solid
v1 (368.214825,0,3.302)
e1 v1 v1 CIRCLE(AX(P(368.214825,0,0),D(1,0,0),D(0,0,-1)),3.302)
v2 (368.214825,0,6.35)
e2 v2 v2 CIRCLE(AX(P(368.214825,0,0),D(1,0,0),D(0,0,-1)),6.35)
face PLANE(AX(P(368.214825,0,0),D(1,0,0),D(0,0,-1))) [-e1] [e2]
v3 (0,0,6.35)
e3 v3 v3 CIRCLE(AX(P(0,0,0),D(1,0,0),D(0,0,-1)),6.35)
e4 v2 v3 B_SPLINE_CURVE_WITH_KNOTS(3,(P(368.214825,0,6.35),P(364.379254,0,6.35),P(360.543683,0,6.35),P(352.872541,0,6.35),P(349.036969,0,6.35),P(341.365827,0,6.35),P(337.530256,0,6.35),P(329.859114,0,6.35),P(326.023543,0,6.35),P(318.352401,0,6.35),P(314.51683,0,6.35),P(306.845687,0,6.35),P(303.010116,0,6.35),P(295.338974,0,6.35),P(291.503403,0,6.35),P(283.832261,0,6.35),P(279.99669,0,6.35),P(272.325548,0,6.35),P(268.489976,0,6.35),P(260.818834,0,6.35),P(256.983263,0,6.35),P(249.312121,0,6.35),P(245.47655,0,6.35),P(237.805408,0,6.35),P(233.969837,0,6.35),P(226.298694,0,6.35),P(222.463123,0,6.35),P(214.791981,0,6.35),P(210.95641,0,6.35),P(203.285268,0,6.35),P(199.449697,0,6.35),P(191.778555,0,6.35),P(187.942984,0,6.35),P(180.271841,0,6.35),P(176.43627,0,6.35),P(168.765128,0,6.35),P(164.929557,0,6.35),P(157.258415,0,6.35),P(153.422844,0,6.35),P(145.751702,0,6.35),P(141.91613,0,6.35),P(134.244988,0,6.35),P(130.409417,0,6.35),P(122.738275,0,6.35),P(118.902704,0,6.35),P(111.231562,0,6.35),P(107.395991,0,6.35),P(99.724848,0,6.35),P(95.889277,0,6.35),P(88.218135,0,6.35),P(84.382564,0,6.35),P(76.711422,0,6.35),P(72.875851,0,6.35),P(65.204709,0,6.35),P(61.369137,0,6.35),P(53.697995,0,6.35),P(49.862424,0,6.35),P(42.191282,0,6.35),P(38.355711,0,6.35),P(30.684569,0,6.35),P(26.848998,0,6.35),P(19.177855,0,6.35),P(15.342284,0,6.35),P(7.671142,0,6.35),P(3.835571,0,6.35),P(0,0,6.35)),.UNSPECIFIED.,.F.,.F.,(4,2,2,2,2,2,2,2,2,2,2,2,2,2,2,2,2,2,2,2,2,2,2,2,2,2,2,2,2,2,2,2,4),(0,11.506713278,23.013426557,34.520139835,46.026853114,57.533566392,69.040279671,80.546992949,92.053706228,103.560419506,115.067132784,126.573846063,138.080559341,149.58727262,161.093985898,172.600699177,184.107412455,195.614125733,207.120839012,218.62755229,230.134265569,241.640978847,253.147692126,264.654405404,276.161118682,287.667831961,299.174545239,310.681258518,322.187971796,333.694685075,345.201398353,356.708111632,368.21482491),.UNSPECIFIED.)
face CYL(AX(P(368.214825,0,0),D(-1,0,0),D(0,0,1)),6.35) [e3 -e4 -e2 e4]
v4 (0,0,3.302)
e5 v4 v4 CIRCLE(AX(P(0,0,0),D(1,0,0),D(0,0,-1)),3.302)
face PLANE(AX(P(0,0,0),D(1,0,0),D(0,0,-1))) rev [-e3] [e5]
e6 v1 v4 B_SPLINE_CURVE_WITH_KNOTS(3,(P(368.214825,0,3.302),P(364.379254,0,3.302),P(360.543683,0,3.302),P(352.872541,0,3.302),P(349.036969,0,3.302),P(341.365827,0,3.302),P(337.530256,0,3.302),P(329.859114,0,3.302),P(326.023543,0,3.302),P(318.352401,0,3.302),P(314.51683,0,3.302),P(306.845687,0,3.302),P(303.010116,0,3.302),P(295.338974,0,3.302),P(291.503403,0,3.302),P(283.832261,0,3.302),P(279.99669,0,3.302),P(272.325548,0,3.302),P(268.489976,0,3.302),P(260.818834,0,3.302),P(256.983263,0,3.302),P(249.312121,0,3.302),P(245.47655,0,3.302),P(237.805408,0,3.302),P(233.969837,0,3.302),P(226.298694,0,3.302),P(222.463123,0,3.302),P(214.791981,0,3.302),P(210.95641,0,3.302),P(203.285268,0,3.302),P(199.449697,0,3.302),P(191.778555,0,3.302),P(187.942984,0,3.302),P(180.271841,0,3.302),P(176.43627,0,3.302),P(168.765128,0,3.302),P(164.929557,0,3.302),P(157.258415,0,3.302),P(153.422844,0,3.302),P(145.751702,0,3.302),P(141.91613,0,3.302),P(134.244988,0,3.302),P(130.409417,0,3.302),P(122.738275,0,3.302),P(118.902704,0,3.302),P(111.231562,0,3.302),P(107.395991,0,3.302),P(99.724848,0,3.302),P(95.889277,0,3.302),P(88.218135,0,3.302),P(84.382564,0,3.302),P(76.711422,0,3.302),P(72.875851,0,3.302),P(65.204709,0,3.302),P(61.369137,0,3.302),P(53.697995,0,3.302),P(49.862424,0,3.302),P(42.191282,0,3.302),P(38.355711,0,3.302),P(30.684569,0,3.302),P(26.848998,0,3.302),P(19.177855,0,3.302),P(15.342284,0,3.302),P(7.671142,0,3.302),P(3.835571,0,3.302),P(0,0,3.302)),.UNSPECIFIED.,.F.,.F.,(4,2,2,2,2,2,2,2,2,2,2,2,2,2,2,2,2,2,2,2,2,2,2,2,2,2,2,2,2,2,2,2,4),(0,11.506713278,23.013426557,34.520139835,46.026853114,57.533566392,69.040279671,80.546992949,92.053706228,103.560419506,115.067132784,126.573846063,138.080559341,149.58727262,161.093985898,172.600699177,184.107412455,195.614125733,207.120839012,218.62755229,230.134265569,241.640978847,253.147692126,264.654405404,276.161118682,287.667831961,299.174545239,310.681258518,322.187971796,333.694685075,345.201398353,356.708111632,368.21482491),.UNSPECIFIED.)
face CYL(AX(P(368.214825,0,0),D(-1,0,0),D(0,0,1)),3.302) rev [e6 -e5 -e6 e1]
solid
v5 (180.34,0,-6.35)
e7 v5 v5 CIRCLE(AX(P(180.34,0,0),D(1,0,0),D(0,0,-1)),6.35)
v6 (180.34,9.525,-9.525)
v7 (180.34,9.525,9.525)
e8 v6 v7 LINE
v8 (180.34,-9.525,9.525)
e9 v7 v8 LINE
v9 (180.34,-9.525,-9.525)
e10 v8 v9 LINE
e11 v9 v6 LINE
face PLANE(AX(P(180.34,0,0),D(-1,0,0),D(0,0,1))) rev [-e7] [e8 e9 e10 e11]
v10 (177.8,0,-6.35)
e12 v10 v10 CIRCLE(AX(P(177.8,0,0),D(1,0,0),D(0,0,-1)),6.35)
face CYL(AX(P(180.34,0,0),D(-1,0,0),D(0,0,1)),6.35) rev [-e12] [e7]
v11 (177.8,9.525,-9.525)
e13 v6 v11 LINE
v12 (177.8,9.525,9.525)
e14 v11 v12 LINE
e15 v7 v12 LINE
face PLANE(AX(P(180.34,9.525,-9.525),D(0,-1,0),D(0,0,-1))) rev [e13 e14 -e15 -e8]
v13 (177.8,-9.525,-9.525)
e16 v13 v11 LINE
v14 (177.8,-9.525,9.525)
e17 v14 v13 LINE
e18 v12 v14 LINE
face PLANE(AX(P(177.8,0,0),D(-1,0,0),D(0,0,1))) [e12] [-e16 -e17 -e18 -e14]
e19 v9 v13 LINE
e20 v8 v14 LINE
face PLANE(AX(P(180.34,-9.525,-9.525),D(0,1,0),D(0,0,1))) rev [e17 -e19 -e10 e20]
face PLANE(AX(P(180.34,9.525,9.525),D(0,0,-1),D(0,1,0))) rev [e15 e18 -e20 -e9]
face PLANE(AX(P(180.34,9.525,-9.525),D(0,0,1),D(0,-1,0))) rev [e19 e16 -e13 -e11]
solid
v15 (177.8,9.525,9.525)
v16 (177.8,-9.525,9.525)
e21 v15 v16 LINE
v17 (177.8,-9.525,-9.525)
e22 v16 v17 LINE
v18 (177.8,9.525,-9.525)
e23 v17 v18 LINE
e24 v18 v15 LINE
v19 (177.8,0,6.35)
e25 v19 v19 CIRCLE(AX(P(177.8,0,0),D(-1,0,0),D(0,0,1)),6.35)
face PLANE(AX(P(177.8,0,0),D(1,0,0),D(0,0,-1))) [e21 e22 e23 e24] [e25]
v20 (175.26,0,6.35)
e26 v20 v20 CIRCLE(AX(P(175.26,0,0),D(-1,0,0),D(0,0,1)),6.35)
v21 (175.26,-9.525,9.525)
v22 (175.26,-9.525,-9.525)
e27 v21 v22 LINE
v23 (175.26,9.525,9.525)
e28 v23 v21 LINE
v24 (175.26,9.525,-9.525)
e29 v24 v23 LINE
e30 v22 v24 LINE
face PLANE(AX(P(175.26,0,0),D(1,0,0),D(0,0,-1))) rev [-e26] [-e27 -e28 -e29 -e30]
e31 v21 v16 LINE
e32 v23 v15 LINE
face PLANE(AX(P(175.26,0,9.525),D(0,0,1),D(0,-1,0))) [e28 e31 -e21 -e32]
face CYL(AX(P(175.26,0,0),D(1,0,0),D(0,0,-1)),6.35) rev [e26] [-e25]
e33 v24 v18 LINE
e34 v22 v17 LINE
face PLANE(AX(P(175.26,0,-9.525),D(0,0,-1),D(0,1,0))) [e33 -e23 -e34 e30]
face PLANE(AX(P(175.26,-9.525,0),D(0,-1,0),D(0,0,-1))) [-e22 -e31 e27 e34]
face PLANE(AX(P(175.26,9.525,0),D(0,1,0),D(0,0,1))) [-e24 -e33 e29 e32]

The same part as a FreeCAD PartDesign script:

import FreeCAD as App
import Part
import Sketcher
from FreeCAD import Vector
Q = App.Units.Quantity

doc = App.newDocument("Part")
body = doc.addObject("PartDesign::Body", "Body")

# Sketch on YZ plane
sketch1 = body.newObject("Sketcher::SketchObject", "Sketch")
sketch1.AttachmentSupport = (doc.getObject("YZ_Plane"), [""])
sketch1.MapMode = "FlatFace"
sketch1.addGeometry([
    Part.Circle(Vector(0, 0, 0), Vector(0, 0, 1), 6.3),
    Part.Circle(Vector(0, 0, 0), Vector(0, 0, 1), 3.3),
], False)
sketch1.addConstraint([
    Sketcher.Constraint("Coincident", 0, 3, -1, 1),
    Sketcher.Constraint("Coincident", 1, 3, -1, 1),
    Sketcher.Constraint("Diameter", 0, Q("0.5 in")),
    Sketcher.Constraint("Diameter", 1, Q("0.26 in")),
])
pad1 = body.newObject("PartDesign::Pad", "Pad")
pad1.Profile = sketch1
pad1.Length = 368.214825
body2 = doc.addObject("PartDesign::Body", "Body001")

# Sketch on YZ plane
sketch2 = body2.newObject("Sketcher::SketchObject", "Sketch001")
sketch2.AttachmentSupport = (doc.getObject("YZ_Plane001"), [""])
sketch2.MapMode = "FlatFace"
sketch2.AttachmentOffset = App.Placement(Vector(0, 0, 7 * 25.4), App.Rotation())
sketch2.addGeometry([
    Part.LineSegment(Vector(10, 10, 0), Vector(-10, 10, 0)),  # 0
    Part.LineSegment(Vector(-10, 10, 0), Vector(-10, -10, 0)),  # 1
    Part.LineSegment(Vector(-10, -10, 0), Vector(10, -10, 0)),  # 2
    Part.LineSegment(Vector(10, -10, 0), Vector(10, 10, 0)),  # 3
    Part.Circle(Vector(0, 0, 0), Vector(0, 0, 1), 6),  # 4
], False)
sketch2.addConstraint([
    Sketcher.Constraint("Coincident", 0, 2, 1, 1),
    Sketcher.Constraint("Coincident", 1, 2, 2, 1),
    Sketcher.Constraint("Coincident", 2, 2, 3, 1),
    Sketcher.Constraint("Coincident", 3, 2, 0, 1),
    Sketcher.Constraint("Horizontal", 0),
    Sketcher.Constraint("Vertical", 1),
    Sketcher.Constraint("Horizontal", 2),
    Sketcher.Constraint("Vertical", 3),
    Sketcher.Constraint("Coincident", 4, 3, -1, 1),
    Sketcher.Constraint("Symmetric", 0, 2, 2, 2, -1, 1),
    Sketcher.Constraint("Equal", 2, 1),
    Sketcher.Constraint("Diameter", 4, Q("0.5 in")),
    Sketcher.Constraint("DistanceX", 0, 2, 0, 1, Q("0.75 in")),
])
pad2 = body2.newObject("PartDesign::Pad", "Pad001")
pad2.Profile = sketch2
pad2.Length = Q("0.1 in")
body3 = doc.addObject("PartDesign::Body", "Body002")

# Sketch on YZ plane
sketch3 = body3.newObject("Sketcher::SketchObject", "Sketch002")
sketch3.AttachmentSupport = (doc.getObject("YZ_Plane002"), [""])
sketch3.MapMode = "FlatFace"
sketch3.AttachmentOffset = App.Placement(Vector(0, 0, 7 * 25.4), App.Rotation())
sketch3.addGeometry([
    Part.LineSegment(Vector(10, 10, 0), Vector(-10, 10, 0)),  # 0
    Part.LineSegment(Vector(-10, 10, 0), Vector(-10, -10, 0)),  # 1
    Part.LineSegment(Vector(-10, -10, 0), Vector(10, -10, 0)),  # 2
    Part.LineSegment(Vector(10, -10, 0), Vector(10, 10, 0)),  # 3
    Part.Circle(Vector(0, 0, 0), Vector(0, 0, 1), 6),  # 4
], False)
sketch3.addConstraint([
    Sketcher.Constraint("Coincident", 0, 2, 1, 1),
    Sketcher.Constraint("Coincident", 1, 2, 2, 1),
    Sketcher.Constraint("Coincident", 2, 2, 3, 1),
    Sketcher.Constraint("Coincident", 3, 2, 0, 1),
    Sketcher.Constraint("Horizontal", 0),
    Sketcher.Constraint("Vertical", 1),
    Sketcher.Constraint("Horizontal", 2),
    Sketcher.Constraint("Vertical", 3),
    Sketcher.Constraint("Coincident", 4, 3, -1, 1),
    Sketcher.Constraint("Symmetric", 0, 2, 2, 2, -1, 1),
    Sketcher.Constraint("Equal", 2, 1),
    Sketcher.Constraint("Diameter", 4, Q("0.5 in")),
    Sketcher.Constraint("DistanceX", 0, 2, 0, 1, Q("0.75 in")),
])
pad3 = body3.newObject("PartDesign::Pad", "Pad002")
pad3.Profile = sketch3
pad3.Length = Q("0.1 in")
pad3.Reversed = True

doc.recompute()
